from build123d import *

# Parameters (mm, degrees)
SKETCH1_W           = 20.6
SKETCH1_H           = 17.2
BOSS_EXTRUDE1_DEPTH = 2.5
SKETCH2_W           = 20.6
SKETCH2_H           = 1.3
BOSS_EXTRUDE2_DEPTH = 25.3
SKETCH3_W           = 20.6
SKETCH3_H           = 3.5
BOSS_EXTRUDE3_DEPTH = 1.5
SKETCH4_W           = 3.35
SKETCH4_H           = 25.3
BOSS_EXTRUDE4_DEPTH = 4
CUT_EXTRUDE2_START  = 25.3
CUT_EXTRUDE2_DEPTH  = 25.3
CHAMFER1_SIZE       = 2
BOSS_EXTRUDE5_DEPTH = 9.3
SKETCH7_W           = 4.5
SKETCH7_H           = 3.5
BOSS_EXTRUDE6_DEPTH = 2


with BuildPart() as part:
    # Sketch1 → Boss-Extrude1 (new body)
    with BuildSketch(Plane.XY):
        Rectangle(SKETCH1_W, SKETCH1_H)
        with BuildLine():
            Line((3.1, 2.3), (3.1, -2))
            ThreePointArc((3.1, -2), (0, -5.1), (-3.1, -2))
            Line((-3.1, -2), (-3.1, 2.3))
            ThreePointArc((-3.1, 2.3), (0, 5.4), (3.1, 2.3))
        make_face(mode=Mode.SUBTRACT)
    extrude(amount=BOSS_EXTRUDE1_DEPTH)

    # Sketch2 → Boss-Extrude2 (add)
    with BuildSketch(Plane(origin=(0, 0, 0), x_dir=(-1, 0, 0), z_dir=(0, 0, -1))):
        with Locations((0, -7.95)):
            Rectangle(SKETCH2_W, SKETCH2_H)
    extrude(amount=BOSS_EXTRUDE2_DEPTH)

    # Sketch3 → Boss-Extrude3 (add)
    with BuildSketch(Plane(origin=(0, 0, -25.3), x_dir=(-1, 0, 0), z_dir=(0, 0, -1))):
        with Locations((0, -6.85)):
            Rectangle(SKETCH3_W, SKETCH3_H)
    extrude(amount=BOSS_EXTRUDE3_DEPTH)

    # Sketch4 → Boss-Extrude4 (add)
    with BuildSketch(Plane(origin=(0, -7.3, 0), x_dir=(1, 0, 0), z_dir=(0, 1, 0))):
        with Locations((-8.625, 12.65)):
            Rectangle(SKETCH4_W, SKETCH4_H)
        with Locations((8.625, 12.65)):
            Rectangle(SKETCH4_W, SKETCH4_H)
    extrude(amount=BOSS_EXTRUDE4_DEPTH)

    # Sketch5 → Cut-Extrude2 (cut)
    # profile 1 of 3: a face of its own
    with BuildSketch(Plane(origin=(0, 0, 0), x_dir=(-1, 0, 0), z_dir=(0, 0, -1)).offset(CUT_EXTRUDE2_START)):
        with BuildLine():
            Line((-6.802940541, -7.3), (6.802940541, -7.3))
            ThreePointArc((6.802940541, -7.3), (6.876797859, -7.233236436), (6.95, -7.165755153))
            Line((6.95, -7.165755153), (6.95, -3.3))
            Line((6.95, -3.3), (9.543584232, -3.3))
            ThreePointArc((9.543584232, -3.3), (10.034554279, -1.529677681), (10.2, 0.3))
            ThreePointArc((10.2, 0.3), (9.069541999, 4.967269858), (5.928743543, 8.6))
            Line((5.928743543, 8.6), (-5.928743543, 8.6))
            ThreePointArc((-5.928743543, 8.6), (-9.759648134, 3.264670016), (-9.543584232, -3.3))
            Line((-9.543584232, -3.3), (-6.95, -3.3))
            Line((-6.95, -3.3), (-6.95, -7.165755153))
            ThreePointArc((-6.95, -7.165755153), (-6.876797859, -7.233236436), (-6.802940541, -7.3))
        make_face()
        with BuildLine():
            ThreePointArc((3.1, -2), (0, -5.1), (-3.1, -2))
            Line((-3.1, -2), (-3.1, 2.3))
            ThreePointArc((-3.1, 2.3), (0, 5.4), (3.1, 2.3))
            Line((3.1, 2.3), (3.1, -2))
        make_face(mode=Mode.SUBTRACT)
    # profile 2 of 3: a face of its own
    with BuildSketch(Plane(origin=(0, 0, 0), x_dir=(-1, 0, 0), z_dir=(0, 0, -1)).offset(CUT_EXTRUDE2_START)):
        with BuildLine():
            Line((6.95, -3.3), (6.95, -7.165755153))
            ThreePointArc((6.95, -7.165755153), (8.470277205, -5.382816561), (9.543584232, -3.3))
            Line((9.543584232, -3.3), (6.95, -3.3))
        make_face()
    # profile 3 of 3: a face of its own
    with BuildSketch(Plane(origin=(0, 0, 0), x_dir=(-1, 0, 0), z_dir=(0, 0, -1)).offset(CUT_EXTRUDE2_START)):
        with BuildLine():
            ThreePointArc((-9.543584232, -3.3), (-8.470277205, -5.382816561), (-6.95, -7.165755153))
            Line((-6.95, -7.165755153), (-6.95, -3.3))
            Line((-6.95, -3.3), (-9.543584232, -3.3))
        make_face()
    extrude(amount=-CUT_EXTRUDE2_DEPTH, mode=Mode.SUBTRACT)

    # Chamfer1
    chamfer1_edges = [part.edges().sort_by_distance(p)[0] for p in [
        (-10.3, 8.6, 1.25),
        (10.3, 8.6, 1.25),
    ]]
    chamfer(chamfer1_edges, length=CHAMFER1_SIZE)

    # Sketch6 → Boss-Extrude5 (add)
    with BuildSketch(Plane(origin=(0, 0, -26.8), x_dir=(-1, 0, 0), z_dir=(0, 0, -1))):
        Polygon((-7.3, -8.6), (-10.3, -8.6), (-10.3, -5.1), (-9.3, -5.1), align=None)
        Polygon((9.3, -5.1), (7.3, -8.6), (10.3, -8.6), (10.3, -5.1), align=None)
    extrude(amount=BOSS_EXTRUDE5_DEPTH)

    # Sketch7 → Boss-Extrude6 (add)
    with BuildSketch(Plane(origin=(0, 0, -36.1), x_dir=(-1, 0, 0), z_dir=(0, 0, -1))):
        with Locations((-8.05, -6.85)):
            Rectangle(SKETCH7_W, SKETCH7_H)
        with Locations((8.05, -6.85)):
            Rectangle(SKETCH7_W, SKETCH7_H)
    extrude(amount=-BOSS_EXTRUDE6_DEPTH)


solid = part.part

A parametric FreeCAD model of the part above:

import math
import FreeCAD as App
import Part
import Sketcher
from FreeCAD import Vector


def edges_at(feature, points):
    """Names of the edges that pass closest to the given points."""
    edges = feature.Shape.Edges
    near = lambda p: min(range(len(edges)), key=lambda i: edges[i].distToShape(Part.Vertex(*p))[0])
    return sorted({f"Edge{near(p) + 1}" for p in points})

doc = App.newDocument("Part")
body = doc.addObject("PartDesign::Body", "Body")

# Sketch on XY plane
sketch1 = doc.addObject("Sketcher::SketchObject", "Sketch")
body.addObject(sketch1)
sketch1.AttachmentSupport = (doc.XY_Plane, [""])
sketch1.MapMode = "FlatFace"
sketch1.addGeometry(Part.LineSegment(Vector(-10.3, 8.6, 0), Vector(-10.3, -8.6, 0)), False)
sketch1.addGeometry(Part.LineSegment(Vector(-10.3, -8.6, 0), Vector(10.3, -8.6, 0)), False)
sketch1.addGeometry(Part.LineSegment(Vector(10.3, -8.6, 0), Vector(10.3, 8.6, 0)), False)
sketch1.addGeometry(Part.LineSegment(Vector(10.3, 8.6, 0), Vector(-10.3, 8.6, 0)), False)
sketch1.addGeometry(Part.ArcOfCircle(Part.Circle(Vector(0, 2.3, 0), Vector(0, 0, 1), 3.1), math.radians(0), math.radians(180)), False)
sketch1.addGeometry(Part.LineSegment(Vector(3.1, 2.3, 0), Vector(3.1, -2, 0)), False)
sketch1.addGeometry(Part.ArcOfCircle(Part.Circle(Vector(0, -2, 0), Vector(0, 0, 1), 3.1), math.radians(180), math.radians(360)), False)
sketch1.addGeometry(Part.LineSegment(Vector(-3.1, -2, 0), Vector(-3.1, 2.3, 0)), False)
sketch1.addConstraint(Sketcher.Constraint("Coincident", 0, 2, 1, 1))
sketch1.addConstraint(Sketcher.Constraint("Coincident", 1, 2, 2, 1))
sketch1.addConstraint(Sketcher.Constraint("Coincident", 2, 2, 3, 1))
sketch1.addConstraint(Sketcher.Constraint("Coincident", 3, 2, 0, 1))
sketch1.addConstraint(Sketcher.Constraint("Tangent", 4, 1, 5, 1))
sketch1.addConstraint(Sketcher.Constraint("Tangent", 5, 2, 6, 2))
sketch1.addConstraint(Sketcher.Constraint("Tangent", 6, 1, 7, 1))
sketch1.addConstraint(Sketcher.Constraint("Tangent", 7, 2, 4, 2))
sketch1.addConstraint(Sketcher.Constraint("Vertical", 0))
sketch1.addConstraint(Sketcher.Constraint("Horizontal", 1))
sketch1.addConstraint(Sketcher.Constraint("Vertical", 2))
sketch1.addConstraint(Sketcher.Constraint("Horizontal", 3))
sketch1.addConstraint(Sketcher.Constraint("Vertical", 5))
sketch1.addConstraint(Sketcher.Constraint("Vertical", 7))
sketch1.addConstraint(Sketcher.Constraint("Symmetric", 0, 2, 2, 2, -1, 1))
sketch1.addConstraint(Sketcher.Constraint("PointOnObject", 4, 3, -2))
sketch1.addConstraint(Sketcher.Constraint("Radius", 4, 3.1))
sketch1.addConstraint(Sketcher.Constraint("DistanceX", 1, 1, 1, 2, 20.6))
sketch1.addConstraint(Sketcher.Constraint("DistanceY", 0, 2, 0, 1, 17.2))
sketch1.addConstraint(Sketcher.Constraint("DistanceY", 5, 2, 5, 1, 4.3))
sketch1.addConstraint(Sketcher.Constraint("DistanceY", 6, 3, -1, 1, 2.0))
pad1 = doc.addObject("PartDesign::Pad", "Pad")
body.addObject(pad1)
pad1.Profile = sketch1
pad1.Length = 2.5

# Sketch on XY plane
sketch2 = doc.addObject("Sketcher::SketchObject", "Sketch001")
body.addObject(sketch2)
sketch2.AttachmentSupport = (doc.XY_Plane, [""])
sketch2.MapMode = "FlatFace"
sketch2.addGeometry(Part.LineSegment(Vector(10.3, -7.3, 0), Vector(10.3, -8.6, 0)), False)
sketch2.addGeometry(Part.LineSegment(Vector(10.3, -8.6, 0), Vector(-10.3, -8.6, 0)), False)
sketch2.addGeometry(Part.LineSegment(Vector(-10.3, -8.6, 0), Vector(-10.3, -7.3, 0)), False)
sketch2.addGeometry(Part.LineSegment(Vector(-10.3, -7.3, 0), Vector(10.3, -7.3, 0)), False)
sketch2.addConstraint(Sketcher.Constraint("Coincident", 0, 2, 1, 1))
sketch2.addConstraint(Sketcher.Constraint("Coincident", 1, 2, 2, 1))
sketch2.addConstraint(Sketcher.Constraint("Coincident", 2, 2, 3, 1))
sketch2.addConstraint(Sketcher.Constraint("Coincident", 3, 2, 0, 1))
sketch2.addConstraint(Sketcher.Constraint("Vertical", 0))
sketch2.addConstraint(Sketcher.Constraint("Horizontal", 1))
sketch2.addConstraint(Sketcher.Constraint("Vertical", 2))
sketch2.addConstraint(Sketcher.Constraint("Horizontal", 3))
sketch2.addConstraint(Sketcher.Constraint("DistanceX", 1, 2, 1, 1, 20.6))
sketch2.addConstraint(Sketcher.Constraint("DistanceY", 0, 2, 0, 1, 1.3))
sketch2.addConstraint(Sketcher.Constraint("DistanceX", -1, 1, 0, 2, 10.3))
sketch2.addConstraint(Sketcher.Constraint("DistanceY", 0, 2, -1, 1, 8.6))
pad2 = doc.addObject("PartDesign::Pad", "Pad001")
body.addObject(pad2)
pad2.Profile = sketch2
pad2.Length = 25.3
pad2.Reversed = True

# Sketch on XY plane
sketch3 = doc.addObject("Sketcher::SketchObject", "Sketch002")
body.addObject(sketch3)
sketch3.AttachmentSupport = (doc.XY_Plane, [""])
sketch3.MapMode = "FlatFace"
sketch3.AttachmentOffset = App.Placement(Vector(0, 0, -25.3), App.Rotation())
sketch3.addGeometry(Part.LineSegment(Vector(10.3, -5.1, 0), Vector(10.3, -8.6, 0)), False)
sketch3.addGeometry(Part.LineSegment(Vector(10.3, -8.6, 0), Vector(-10.3, -8.6, 0)), False)
sketch3.addGeometry(Part.LineSegment(Vector(-10.3, -8.6, 0), Vector(-10.3, -5.1, 0)), False)
sketch3.addGeometry(Part.LineSegment(Vector(-10.3, -5.1, 0), Vector(10.3, -5.1, 0)), False)
sketch3.addConstraint(Sketcher.Constraint("Coincident", 0, 2, 1, 1))
sketch3.addConstraint(Sketcher.Constraint("Coincident", 1, 2, 2, 1))
sketch3.addConstraint(Sketcher.Constraint("Coincident", 2, 2, 3, 1))
sketch3.addConstraint(Sketcher.Constraint("Coincident", 3, 2, 0, 1))
sketch3.addConstraint(Sketcher.Constraint("Vertical", 0))
sketch3.addConstraint(Sketcher.Constraint("Horizontal", 1))
sketch3.addConstraint(Sketcher.Constraint("Vertical", 2))
sketch3.addConstraint(Sketcher.Constraint("Horizontal", 3))
sketch3.addConstraint(Sketcher.Constraint("DistanceX", 1, 2, 1, 1, 20.6))
sketch3.addConstraint(Sketcher.Constraint("DistanceY", 0, 2, 0, 1, 3.5))
sketch3.addConstraint(Sketcher.Constraint("DistanceX", -1, 1, 0, 2, 10.3))
sketch3.addConstraint(Sketcher.Constraint("DistanceY", 0, 2, -1, 1, 8.6))
pad3 = doc.addObject("PartDesign::Pad", "Pad002")
body.addObject(pad3)
pad3.Profile = sketch3
pad3.Length = 1.5
pad3.Reversed = True

# Sketch on XZ plane
sketch4 = doc.addObject("Sketcher::SketchObject", "Sketch003")
body.addObject(sketch4)
sketch4.AttachmentSupport = (doc.XZ_Plane, [""])
sketch4.MapMode = "FlatFace"
sketch4.AttachmentOffset = App.Placement(Vector(0, 0, 7.3), App.Rotation())
sketch4.addGeometry(Part.LineSegment(Vector(-10.3, -25.3, 0), Vector(-10.3, 0, 0)), False)
sketch4.addGeometry(Part.LineSegment(Vector(-10.3, 0, 0), Vector(-7, 0, 0)), False)
sketch4.addGeometry(Part.LineSegment(Vector(-7, 0, 0), Vector(-7, -25.3, 0)), False)
sketch4.addGeometry(Part.LineSegment(Vector(-7, -25.3, 0), Vector(-10.3, -25.3, 0)), False)
sketch4.addGeometry(Part.LineSegment(Vector(7, -25.3, 0), Vector(7, 0, 0)), False)
sketch4.addGeometry(Part.LineSegment(Vector(7, 0, 0), Vector(10.3, 0, 0)), False)
sketch4.addGeometry(Part.LineSegment(Vector(10.3, 0, 0), Vector(10.3, -25.3, 0)), False)
sketch4.addGeometry(Part.LineSegment(Vector(10.3, -25.3, 0), Vector(7, -25.3, 0)), False)
sketch4.addConstraint(Sketcher.Constraint("Coincident", 0, 2, 1, 1))
sketch4.addConstraint(Sketcher.Constraint("Coincident", 1, 2, 2, 1))
sketch4.addConstraint(Sketcher.Constraint("Coincident", 2, 2, 3, 1))
sketch4.addConstraint(Sketcher.Constraint("Coincident", 3, 2, 0, 1))
sketch4.addConstraint(Sketcher.Constraint("Coincident", 4, 2, 5, 1))
sketch4.addConstraint(Sketcher.Constraint("Coincident", 5, 2, 6, 1))
sketch4.addConstraint(Sketcher.Constraint("Coincident", 6, 2, 7, 1))
sketch4.addConstraint(Sketcher.Constraint("Coincident", 7, 2, 4, 1))
sketch4.addConstraint(Sketcher.Constraint("Vertical", 0))
sketch4.addConstraint(Sketcher.Constraint("Horizontal", 1))
sketch4.addConstraint(Sketcher.Constraint("Vertical", 2))
sketch4.addConstraint(Sketcher.Constraint("Horizontal", 3))
sketch4.addConstraint(Sketcher.Constraint("Vertical", 4))
sketch4.addConstraint(Sketcher.Constraint("Horizontal", 5))
sketch4.addConstraint(Sketcher.Constraint("Vertical", 6))
sketch4.addConstraint(Sketcher.Constraint("Horizontal", 7))
sketch4.addConstraint(Sketcher.Constraint("Symmetric", 1, 2, 4, 2, -1, 1))
sketch4.addConstraint(Sketcher.Constraint("Symmetric", 0, 2, 5, 2, -2))
sketch4.addConstraint(Sketcher.Constraint("Horizontal", 3, 2, 6, 2))
sketch4.addConstraint(Sketcher.Constraint("DistanceY", 0, 1, 0, 2, 25.3))
sketch4.addConstraint(Sketcher.Constraint("DistanceX", 1, 1, 1, 2, 3.35))
sketch4.addConstraint(Sketcher.Constraint("DistanceX", 0, 2, -1, 1, 10.3))
pad4 = doc.addObject("PartDesign::Pad", "Pad003")
body.addObject(pad4)
pad4.Profile = sketch4
pad4.Length = 4
pad4.Reversed = True

# Sketch on XY plane
sketch5 = doc.addObject("Sketcher::SketchObject", "Sketch004")
body.addObject(sketch5)
sketch5.AttachmentSupport = (doc.XY_Plane, [""])
sketch5.MapMode = "FlatFace"
sketch5.AttachmentOffset = App.Placement(Vector(0, 0, -25.3), App.Rotation())
sketch5.addGeometry(Part.LineSegment(Vector(6.8, -7.3, 0), Vector(-6.8, -7.3, 0)), False)
sketch5.addGeometry(Part.ArcOfCircle(Part.Circle(Vector(0, 0.3, 0), Vector(0, 0, 1), 10.2), math.radians(-132.95), math.radians(-131.83)), False)
sketch5.addGeometry(Part.ArcOfCircle(Part.Circle(Vector(0, 0.3, 0), Vector(0, 0, 1), 10.2), math.radians(-159), math.radians(-133)), False)
sketch5.addGeometry(Part.ArcOfCircle(Part.Circle(Vector(0, 0.3, 0), Vector(0, 0, 1), 10.2), math.radians(-180), math.radians(-159)), False)
sketch5.addGeometry(Part.ArcOfCircle(Part.Circle(Vector(0, 0.3, 0), Vector(0, 0, 1), 10.2), math.radians(126), math.radians(180)), False)
sketch5.addGeometry(Part.LineSegment(Vector(-5.93, 8.6, 0), Vector(5.93, 8.6, 0)), False)
sketch5.addGeometry(Part.ArcOfCircle(Part.Circle(Vector(0, 0.3, 0), Vector(0, 0, 1), 10.2), math.radians(-21), math.radians(54)), False)
sketch5.addGeometry(Part.ArcOfCircle(Part.Circle(Vector(0, 0.3, 0), Vector(0, 0, 1), 10.2), math.radians(-47), math.radians(-21)), False)
sketch5.addGeometry(Part.ArcOfCircle(Part.Circle(Vector(0, 0.3, 0), Vector(0, 0, 1), 10.2), math.radians(-48.17), math.radians(-47.05)), False)
sketch5.addGeometry(Part.LineSegment(Vector(-3.1, 2.3, 0), Vector(-3.1, -2, 0)), False)
sketch5.addGeometry(Part.ArcOfCircle(Part.Circle(Vector(0, -2, 0), Vector(0, 0, 1), 3.1), math.radians(180), math.radians(360)), False)
sketch5.addGeometry(Part.LineSegment(Vector(3.1, -2, 0), Vector(3.1, 2.3, 0)), False)
sketch5.addGeometry(Part.ArcOfCircle(Part.Circle(Vector(0, 2.3, 0), Vector(0, 0, 1), 3.1), math.radians(0), math.radians(180)), False)
sketch5.addConstraint(Sketcher.Constraint("Coincident", 0, 2, 1, 2))
sketch5.addConstraint(Sketcher.Constraint("Tangent", 1, 1, 2, 2))
sketch5.addConstraint(Sketcher.Constraint("Tangent", 2, 1, 3, 2))
sketch5.addConstraint(Sketcher.Constraint("Tangent", 3, 1, 4, 2))
sketch5.addConstraint(Sketcher.Constraint("Coincident", 4, 1, 5, 1))
sketch5.addConstraint(Sketcher.Constraint("Coincident", 5, 2, 6, 2))
sketch5.addConstraint(Sketcher.Constraint("Tangent", 6, 1, 7, 2))
sketch5.addConstraint(Sketcher.Constraint("Tangent", 7, 1, 8, 2))
sketch5.addConstraint(Sketcher.Constraint("Coincident", 8, 1, 0, 1))
sketch5.addConstraint(Sketcher.Constraint("Tangent", 9, 2, 10, 1))
sketch5.addConstraint(Sketcher.Constraint("Tangent", 10, 2, 11, 1))
sketch5.addConstraint(Sketcher.Constraint("Tangent", 11, 2, 12, 1))
sketch5.addConstraint(Sketcher.Constraint("Tangent", 12, 2, 9, 1))
sketch5.addConstraint(Sketcher.Constraint("Horizontal", 0))
sketch5.addConstraint(Sketcher.Constraint("Horizontal", 5))
sketch5.addConstraint(Sketcher.Constraint("Vertical", 9))
sketch5.addConstraint(Sketcher.Constraint("Vertical", 11))
sketch5.addConstraint(Sketcher.Constraint("Coincident", 4, 3, 2, 3))
sketch5.addConstraint(Sketcher.Constraint("Coincident", 6, 3, 2, 3))
sketch5.addConstraint(Sketcher.Constraint("Equal", 4, 6))
sketch5.addConstraint(Sketcher.Constraint("Equal", 6, 7))
sketch5.addConstraint(Sketcher.Constraint("Equal", 1, 8))
sketch5.addConstraint(Sketcher.Constraint("Symmetric", 2, 1, 6, 1, -2))
sketch5.addConstraint(Sketcher.Constraint("PointOnObject", 10, 3, -2))
sketch5.addConstraint(Sketcher.Constraint("Horizontal", 7, 3, 3, 1))
sketch5.addConstraint(Sketcher.Constraint("Horizontal", 1, 1, 7, 1))
sketch5.addConstraint(Sketcher.Constraint("Radius", 2, 10.2))
sketch5.addConstraint(Sketcher.Constraint("Radius", 10, 3.1))
sketch5.addConstraint(Sketcher.Constraint("DistanceY", 9, 2, 9, 1, 4.3))
sketch5.addConstraint(Sketcher.Constraint("DistanceY", 10, 3, -1, 1, 2.0))
sketch5.addConstraint(Sketcher.Constraint("DistanceY", 2, 3, 12, 3, 2.0))
sketch5.addConstraint(Sketcher.Constraint("DistanceY", 0, 2, 2, 1, 4.0))
sketch5.addConstraint(Sketcher.Constraint("DistanceY", 0, 2, -1, 1, 7.3))
sketch5.addConstraint(Sketcher.Constraint("DistanceY", -1, 1, 4, 1, 8.6))
sketch5.addConstraint(Sketcher.Constraint("DistanceX", 1, 1, -1, 1, 6.95))
sketch5.addConstraint(Sketcher.Constraint("Radius", 1, 10.200011))
pocket1 = doc.addObject("PartDesign::Pocket", "Pocket")
body.addObject(pocket1)
pocket1.Profile = sketch5
pocket1.Length = 25.3
pocket1.Reversed = True
doc.recompute()

chamfer = doc.addObject("PartDesign::Chamfer", "Chamfer")
body.addObject(chamfer)
chamfer.Base = (pocket1, edges_at(pocket1, [(-10.3, 8.6, 1.25), (10.3, 8.6, 1.25)]))
chamfer.Size = 2

# Sketch on XY plane
sketch6 = doc.addObject("Sketcher::SketchObject", "Sketch005")
body.addObject(sketch6)
sketch6.AttachmentSupport = (doc.XY_Plane, [""])
sketch6.MapMode = "FlatFace"
sketch6.AttachmentOffset = App.Placement(Vector(0, 0, -26.8), App.Rotation())
sketch6.addGeometry(Part.LineSegment(Vector(10.3, -8.6, 0), Vector(7.3, -8.6, 0)), False)
sketch6.addGeometry(Part.LineSegment(Vector(7.3, -8.6, 0), Vector(9.3, -5.1, 0)), False)
sketch6.addGeometry(Part.LineSegment(Vector(9.3, -5.1, 0), Vector(10.3, -5.1, 0)), False)
sketch6.addGeometry(Part.LineSegment(Vector(10.3, -5.1, 0), Vector(10.3, -8.6, 0)), False)
sketch6.addGeometry(Part.LineSegment(Vector(-9.3, -5.1, 0), Vector(-7.3, -8.6, 0)), False)
sketch6.addGeometry(Part.LineSegment(Vector(-7.3, -8.6, 0), Vector(-10.3, -8.6, 0)), False)
sketch6.addGeometry(Part.LineSegment(Vector(-10.3, -8.6, 0), Vector(-10.3, -5.1, 0)), False)
sketch6.addGeometry(Part.LineSegment(Vector(-10.3, -5.1, 0), Vector(-9.3, -5.1, 0)), False)
sketch6.addConstraint(Sketcher.Constraint("Coincident", 0, 2, 1, 1))
sketch6.addConstraint(Sketcher.Constraint("Coincident", 1, 2, 2, 1))
sketch6.addConstraint(Sketcher.Constraint("Coincident", 2, 2, 3, 1))
sketch6.addConstraint(Sketcher.Constraint("Coincident", 3, 2, 0, 1))
sketch6.addConstraint(Sketcher.Constraint("Coincident", 4, 2, 5, 1))
sketch6.addConstraint(Sketcher.Constraint("Coincident", 5, 2, 6, 1))
sketch6.addConstraint(Sketcher.Constraint("Coincident", 6, 2, 7, 1))
sketch6.addConstraint(Sketcher.Constraint("Coincident", 7, 2, 4, 1))
sketch6.addConstraint(Sketcher.Constraint("Horizontal", 0))
sketch6.addConstraint(Sketcher.Constraint("Horizontal", 2))
sketch6.addConstraint(Sketcher.Constraint("Vertical", 3))
sketch6.addConstraint(Sketcher.Constraint("Horizontal", 5))
sketch6.addConstraint(Sketcher.Constraint("Vertical", 6))
sketch6.addConstraint(Sketcher.Constraint("Horizontal", 7))
sketch6.addConstraint(Sketcher.Constraint("Symmetric", 0, 2, 4, 2, -2))
sketch6.addConstraint(Sketcher.Constraint("Symmetric", 2, 2, 6, 2, -2))
sketch6.addConstraint(Sketcher.Constraint("Equal", 2, 7))
sketch6.addConstraint(Sketcher.Constraint("DistanceX", 0, 2, 0, 1, 3.0))
sketch6.addConstraint(Sketcher.Constraint("DistanceX", 2, 1, 2, 2, 1.0))
sketch6.addConstraint(Sketcher.Constraint("DistanceY", 3, 2, 3, 1, 3.5))
sketch6.addConstraint(Sketcher.Constraint("DistanceX", -1, 1, 0, 2, 7.3))
sketch6.addConstraint(Sketcher.Constraint("DistanceY", 0, 2, -1, 1, 8.6))
pad5 = doc.addObject("PartDesign::Pad", "Pad004")
body.addObject(pad5)
pad5.Profile = sketch6
pad5.Length = 9.3
pad5.Reversed = True

# Sketch on XY plane
sketch7 = doc.addObject("Sketcher::SketchObject", "Sketch006")
body.addObject(sketch7)
sketch7.AttachmentSupport = (doc.XY_Plane, [""])
sketch7.MapMode = "FlatFace"
sketch7.AttachmentOffset = App.Placement(Vector(0, 0, -36.1), App.Rotation())
sketch7.addGeometry(Part.LineSegment(Vector(10.3, -5.1, 0), Vector(10.3, -8.6, 0)), False)
sketch7.addGeometry(Part.LineSegment(Vector(10.3, -8.6, 0), Vector(5.8, -8.6, 0)), False)
sketch7.addGeometry(Part.LineSegment(Vector(5.8, -8.6, 0), Vector(5.8, -5.1, 0)), False)
sketch7.addGeometry(Part.LineSegment(Vector(5.8, -5.1, 0), Vector(10.3, -5.1, 0)), False)
sketch7.addGeometry(Part.LineSegment(Vector(-5.8, -5.1, 0), Vector(-5.8, -8.6, 0)), False)
sketch7.addGeometry(Part.LineSegment(Vector(-5.8, -8.6, 0), Vector(-10.3, -8.6, 0)), False)
sketch7.addGeometry(Part.LineSegment(Vector(-10.3, -8.6, 0), Vector(-10.3, -5.1, 0)), False)
sketch7.addGeometry(Part.LineSegment(Vector(-10.3, -5.1, 0), Vector(-5.8, -5.1, 0)), False)
sketch7.addConstraint(Sketcher.Constraint("Coincident", 0, 2, 1, 1))
sketch7.addConstraint(Sketcher.Constraint("Coincident", 1, 2, 2, 1))
sketch7.addConstraint(Sketcher.Constraint("Coincident", 2, 2, 3, 1))
sketch7.addConstraint(Sketcher.Constraint("Coincident", 3, 2, 0, 1))
sketch7.addConstraint(Sketcher.Constraint("Coincident", 4, 2, 5, 1))
sketch7.addConstraint(Sketcher.Constraint("Coincident", 5, 2, 6, 1))
sketch7.addConstraint(Sketcher.Constraint("Coincident", 6, 2, 7, 1))
sketch7.addConstraint(Sketcher.Constraint("Coincident", 7, 2, 4, 1))
sketch7.addConstraint(Sketcher.Constraint("Vertical", 0))
sketch7.addConstraint(Sketcher.Constraint("Horizontal", 1))
sketch7.addConstraint(Sketcher.Constraint("Vertical", 2))
sketch7.addConstraint(Sketcher.Constraint("Horizontal", 3))
sketch7.addConstraint(Sketcher.Constraint("Vertical", 4))
sketch7.addConstraint(Sketcher.Constraint("Horizontal", 5))
sketch7.addConstraint(Sketcher.Constraint("Vertical", 6))
sketch7.addConstraint(Sketcher.Constraint("Horizontal", 7))
sketch7.addConstraint(Sketcher.Constraint("Symmetric", 1, 2, 4, 2, -2))
sketch7.addConstraint(Sketcher.Constraint("Symmetric", 3, 2, 6, 2, -2))
sketch7.addConstraint(Sketcher.Constraint("DistanceX", 1, 2, 1, 1, 4.5))
sketch7.addConstraint(Sketcher.Constraint("DistanceY", 0, 2, 0, 1, 3.5))
sketch7.addConstraint(Sketcher.Constraint("DistanceX", -1, 1, 0, 2, 10.3))
sketch7.addConstraint(Sketcher.Constraint("DistanceY", 0, 2, -1, 1, 8.6))
pad6 = doc.addObject("PartDesign::Pad", "Pad005")
body.addObject(pad6)
pad6.Profile = sketch7
pad6.Length = 2

doc.recompute()
